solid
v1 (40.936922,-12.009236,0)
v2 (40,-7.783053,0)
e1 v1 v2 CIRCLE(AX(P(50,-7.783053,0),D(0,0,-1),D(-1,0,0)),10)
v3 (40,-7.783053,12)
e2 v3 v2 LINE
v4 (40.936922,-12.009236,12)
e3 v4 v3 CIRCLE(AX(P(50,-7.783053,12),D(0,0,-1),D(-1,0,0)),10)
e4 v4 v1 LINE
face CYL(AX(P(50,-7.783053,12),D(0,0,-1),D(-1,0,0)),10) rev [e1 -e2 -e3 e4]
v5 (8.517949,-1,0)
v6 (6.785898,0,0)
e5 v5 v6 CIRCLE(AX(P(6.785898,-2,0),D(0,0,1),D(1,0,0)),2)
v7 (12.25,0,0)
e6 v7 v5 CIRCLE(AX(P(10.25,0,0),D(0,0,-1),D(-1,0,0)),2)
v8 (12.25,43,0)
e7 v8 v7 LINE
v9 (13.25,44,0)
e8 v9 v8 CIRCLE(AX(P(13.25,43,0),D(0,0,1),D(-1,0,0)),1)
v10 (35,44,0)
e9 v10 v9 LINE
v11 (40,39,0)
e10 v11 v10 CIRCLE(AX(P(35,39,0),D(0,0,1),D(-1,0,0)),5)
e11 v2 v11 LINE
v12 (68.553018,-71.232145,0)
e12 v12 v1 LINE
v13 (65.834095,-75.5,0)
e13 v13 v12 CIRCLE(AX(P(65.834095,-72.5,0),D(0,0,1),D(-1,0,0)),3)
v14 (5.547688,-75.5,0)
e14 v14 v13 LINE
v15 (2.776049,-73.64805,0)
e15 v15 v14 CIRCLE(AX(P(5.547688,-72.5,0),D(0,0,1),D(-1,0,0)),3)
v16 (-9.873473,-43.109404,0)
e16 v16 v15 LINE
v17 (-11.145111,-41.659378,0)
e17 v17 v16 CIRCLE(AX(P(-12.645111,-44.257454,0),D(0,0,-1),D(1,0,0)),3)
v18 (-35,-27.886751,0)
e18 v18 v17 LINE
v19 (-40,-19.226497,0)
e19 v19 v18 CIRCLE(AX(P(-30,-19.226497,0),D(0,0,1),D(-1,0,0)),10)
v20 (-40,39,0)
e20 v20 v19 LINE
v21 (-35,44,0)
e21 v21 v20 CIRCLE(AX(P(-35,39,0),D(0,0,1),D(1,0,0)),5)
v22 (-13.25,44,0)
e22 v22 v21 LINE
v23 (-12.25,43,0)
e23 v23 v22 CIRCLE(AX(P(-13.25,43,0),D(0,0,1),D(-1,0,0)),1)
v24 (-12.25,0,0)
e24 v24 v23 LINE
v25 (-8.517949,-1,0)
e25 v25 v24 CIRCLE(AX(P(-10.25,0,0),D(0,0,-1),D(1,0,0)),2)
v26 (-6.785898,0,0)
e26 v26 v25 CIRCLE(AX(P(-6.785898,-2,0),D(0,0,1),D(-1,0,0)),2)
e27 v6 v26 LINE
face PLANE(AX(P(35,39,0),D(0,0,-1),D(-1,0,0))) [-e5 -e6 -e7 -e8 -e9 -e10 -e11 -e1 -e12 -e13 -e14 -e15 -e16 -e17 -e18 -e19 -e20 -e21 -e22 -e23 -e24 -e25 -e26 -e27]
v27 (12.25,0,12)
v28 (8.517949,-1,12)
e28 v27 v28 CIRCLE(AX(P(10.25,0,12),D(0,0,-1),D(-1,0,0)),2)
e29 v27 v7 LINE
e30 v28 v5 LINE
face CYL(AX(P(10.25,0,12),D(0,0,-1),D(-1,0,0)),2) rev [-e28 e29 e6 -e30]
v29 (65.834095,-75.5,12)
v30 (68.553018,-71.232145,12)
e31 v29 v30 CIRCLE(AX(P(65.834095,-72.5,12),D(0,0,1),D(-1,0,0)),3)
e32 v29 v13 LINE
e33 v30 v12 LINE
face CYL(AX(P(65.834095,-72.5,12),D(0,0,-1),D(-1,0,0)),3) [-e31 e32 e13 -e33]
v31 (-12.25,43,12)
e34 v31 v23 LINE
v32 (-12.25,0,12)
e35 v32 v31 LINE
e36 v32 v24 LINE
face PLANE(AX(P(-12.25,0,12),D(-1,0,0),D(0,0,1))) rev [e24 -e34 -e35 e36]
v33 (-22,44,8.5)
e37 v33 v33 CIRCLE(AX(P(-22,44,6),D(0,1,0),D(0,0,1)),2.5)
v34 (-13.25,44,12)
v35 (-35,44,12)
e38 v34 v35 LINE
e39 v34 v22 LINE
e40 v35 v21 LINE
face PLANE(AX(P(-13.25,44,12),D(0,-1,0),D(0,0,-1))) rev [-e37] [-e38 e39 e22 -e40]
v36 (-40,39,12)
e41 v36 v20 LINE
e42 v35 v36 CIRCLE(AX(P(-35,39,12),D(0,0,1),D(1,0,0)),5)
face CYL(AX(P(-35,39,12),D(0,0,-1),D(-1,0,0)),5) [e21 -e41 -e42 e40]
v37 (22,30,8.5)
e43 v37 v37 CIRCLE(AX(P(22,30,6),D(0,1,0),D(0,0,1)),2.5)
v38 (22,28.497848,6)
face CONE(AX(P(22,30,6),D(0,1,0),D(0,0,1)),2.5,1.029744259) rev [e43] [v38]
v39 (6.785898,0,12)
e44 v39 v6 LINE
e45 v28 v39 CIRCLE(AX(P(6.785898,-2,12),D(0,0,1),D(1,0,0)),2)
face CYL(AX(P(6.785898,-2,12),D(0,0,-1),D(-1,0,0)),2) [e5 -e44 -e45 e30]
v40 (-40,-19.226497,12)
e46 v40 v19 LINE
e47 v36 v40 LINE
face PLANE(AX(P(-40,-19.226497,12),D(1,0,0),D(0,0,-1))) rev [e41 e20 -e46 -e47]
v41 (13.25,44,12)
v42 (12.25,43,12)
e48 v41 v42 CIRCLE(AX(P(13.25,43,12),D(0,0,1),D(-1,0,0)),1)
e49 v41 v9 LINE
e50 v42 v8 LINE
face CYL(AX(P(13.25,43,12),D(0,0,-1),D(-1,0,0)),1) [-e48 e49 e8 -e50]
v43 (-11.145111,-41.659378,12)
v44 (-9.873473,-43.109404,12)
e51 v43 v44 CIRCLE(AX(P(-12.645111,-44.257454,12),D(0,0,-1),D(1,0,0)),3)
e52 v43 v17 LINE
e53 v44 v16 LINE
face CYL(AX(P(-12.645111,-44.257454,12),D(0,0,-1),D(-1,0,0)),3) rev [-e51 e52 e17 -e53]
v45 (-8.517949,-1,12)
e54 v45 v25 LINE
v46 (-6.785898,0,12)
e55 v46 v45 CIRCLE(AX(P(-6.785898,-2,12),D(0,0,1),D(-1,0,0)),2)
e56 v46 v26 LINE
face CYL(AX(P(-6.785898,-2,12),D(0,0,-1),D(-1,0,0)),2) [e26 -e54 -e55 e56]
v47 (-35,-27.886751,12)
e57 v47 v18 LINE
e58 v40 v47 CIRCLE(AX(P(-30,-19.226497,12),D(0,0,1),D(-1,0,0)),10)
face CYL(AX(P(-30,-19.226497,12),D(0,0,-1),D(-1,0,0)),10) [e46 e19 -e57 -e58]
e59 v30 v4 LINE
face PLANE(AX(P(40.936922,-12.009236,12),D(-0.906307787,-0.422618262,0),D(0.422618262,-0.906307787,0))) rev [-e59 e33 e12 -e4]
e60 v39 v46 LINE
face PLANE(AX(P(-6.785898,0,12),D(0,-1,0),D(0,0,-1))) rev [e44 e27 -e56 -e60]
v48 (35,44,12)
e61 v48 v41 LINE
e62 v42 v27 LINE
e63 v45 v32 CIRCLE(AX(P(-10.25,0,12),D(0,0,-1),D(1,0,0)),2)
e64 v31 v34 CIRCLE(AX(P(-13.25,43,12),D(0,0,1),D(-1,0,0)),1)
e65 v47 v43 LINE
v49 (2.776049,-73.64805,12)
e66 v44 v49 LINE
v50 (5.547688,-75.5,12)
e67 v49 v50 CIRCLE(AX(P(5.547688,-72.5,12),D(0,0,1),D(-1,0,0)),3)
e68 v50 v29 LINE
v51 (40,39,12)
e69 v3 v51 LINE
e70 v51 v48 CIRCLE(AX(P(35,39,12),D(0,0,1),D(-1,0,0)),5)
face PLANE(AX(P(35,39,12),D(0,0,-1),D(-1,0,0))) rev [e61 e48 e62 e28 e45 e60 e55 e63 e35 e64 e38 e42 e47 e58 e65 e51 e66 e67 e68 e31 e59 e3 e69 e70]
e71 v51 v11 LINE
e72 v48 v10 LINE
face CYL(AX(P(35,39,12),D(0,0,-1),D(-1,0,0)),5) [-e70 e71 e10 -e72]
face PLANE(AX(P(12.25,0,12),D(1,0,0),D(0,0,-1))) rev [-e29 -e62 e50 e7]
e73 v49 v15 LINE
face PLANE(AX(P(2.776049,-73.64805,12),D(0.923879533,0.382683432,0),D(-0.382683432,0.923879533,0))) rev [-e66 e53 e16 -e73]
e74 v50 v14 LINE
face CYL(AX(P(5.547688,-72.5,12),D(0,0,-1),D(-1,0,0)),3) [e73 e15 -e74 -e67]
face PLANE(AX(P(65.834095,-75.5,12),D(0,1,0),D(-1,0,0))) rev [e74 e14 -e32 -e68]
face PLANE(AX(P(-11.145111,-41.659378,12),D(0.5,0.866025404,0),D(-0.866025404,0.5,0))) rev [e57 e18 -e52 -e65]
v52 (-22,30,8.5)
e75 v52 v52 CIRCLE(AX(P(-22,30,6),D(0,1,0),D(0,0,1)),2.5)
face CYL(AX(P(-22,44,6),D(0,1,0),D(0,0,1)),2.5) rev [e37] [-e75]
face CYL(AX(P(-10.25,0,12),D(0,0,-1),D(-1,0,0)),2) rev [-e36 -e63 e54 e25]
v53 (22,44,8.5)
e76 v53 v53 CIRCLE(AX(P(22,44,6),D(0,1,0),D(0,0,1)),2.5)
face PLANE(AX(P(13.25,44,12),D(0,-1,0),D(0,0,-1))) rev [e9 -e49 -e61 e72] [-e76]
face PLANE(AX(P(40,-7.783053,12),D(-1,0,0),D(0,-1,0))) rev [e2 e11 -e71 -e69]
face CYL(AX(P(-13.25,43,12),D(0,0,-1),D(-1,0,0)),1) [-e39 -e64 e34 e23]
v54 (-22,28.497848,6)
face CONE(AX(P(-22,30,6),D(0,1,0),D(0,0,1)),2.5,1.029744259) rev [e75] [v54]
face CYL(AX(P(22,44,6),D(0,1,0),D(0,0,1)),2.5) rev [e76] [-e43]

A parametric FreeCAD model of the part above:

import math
import FreeCAD as App
import Part
import Sketcher
Q = App.Units.Quantity

doc = App.newDocument("Part")
params = doc.addObject("Spreadsheet::Sheet", "Params")
for row, (alias, value) in enumerate([
    ("sketch1_radius", "2 mm"),
    ("sketch1_radius2", "1 mm"),
    ("sketch1_radius3", "5 mm"),
    ("sketch1_radius4", "10 mm"),
    ("sketch1_radius5", "3 mm"),
    ("pad1_length", "12 mm"),
    ("sketch2_diameter", "5 mm"),
    ("hole_diameter", "5 mm"),
    ("hole_depth", "14 mm"),
], start=1):
    params.set(f"A{row}", alias)
    params.set(f"B{row}", "=" + value)
    params.setAlias(f"B{row}", alias)

body = doc.addObject("PartDesign::Body", "Body")

sketch1 = body.newObject("Sketcher::SketchObject", "Sketch")
sketch1.AttachmentSupport = (doc.getObject("XY_Plane"), [""])
sketch1.MapMode = "FlatFace"
sketch1.addGeometry([
    Part.LineSegment(App.Vector(6.8, 0, 0), App.Vector(-6.8, 0, 0)),
    Part.ArcOfCircle(Part.Circle(App.Vector(-6.8, -2, 0), App.Vector(0, 0, 1), 2), math.radians(90), math.radians(150)),
    Part.ArcOfCircle(Part.Circle(App.Vector(-10.2, 0, 0), App.Vector(0, 0, 1), 2), math.radians(180), math.radians(330)),
    Part.LineSegment(App.Vector(-12.2, 0, 0), App.Vector(-12.2, 43, 0)),
    Part.ArcOfCircle(Part.Circle(App.Vector(-13.3, 43, 0), App.Vector(0, 0, 1), 1), math.radians(0), math.radians(90)),
    Part.LineSegment(App.Vector(-13.2, 44, 0), App.Vector(-35, 44, 0)),
    Part.ArcOfCircle(Part.Circle(App.Vector(-35, 39, 0), App.Vector(0, 0, 1), 5), math.radians(90), math.radians(180)),
    Part.LineSegment(App.Vector(-40, 39, 0), App.Vector(-40, -19.2, 0)),
    Part.ArcOfCircle(Part.Circle(App.Vector(-30, -19.2, 0), App.Vector(0, 0, 1), 10), math.radians(180), math.radians(240)),
    Part.LineSegment(App.Vector(-35, -27.9, 0), App.Vector(-11.1, -41.7, 0)),
    Part.ArcOfCircle(Part.Circle(App.Vector(-12.6, -44.3, 0), App.Vector(0, 0, 1), 3), math.radians(23), math.radians(60)),
    Part.LineSegment(App.Vector(-9.9, -43.1, 0), App.Vector(2.8, -73.6, 0)),
    Part.ArcOfCircle(Part.Circle(App.Vector(5.5, -72.5, 0), App.Vector(0, 0, 1), 3), math.radians(-157), math.radians(-90)),
    Part.LineSegment(App.Vector(5.5, -75.5, 0), App.Vector(65.8, -75.5, 0)),
    Part.ArcOfCircle(Part.Circle(App.Vector(65.8, -72.5, 0), App.Vector(0, 0, 1), 3), math.radians(-90), math.radians(25)),
    Part.LineSegment(App.Vector(68.6, -71.2, 0), App.Vector(40.9, -12, 0)),
    Part.ArcOfCircle(Part.Circle(App.Vector(50, -7.8, 0), App.Vector(0, 0, 1), 10), math.radians(-180), math.radians(-155)),
    Part.LineSegment(App.Vector(40, -7.8, 0), App.Vector(40, 39, 0)),
    Part.ArcOfCircle(Part.Circle(App.Vector(35, 39, 0), App.Vector(0, 0, 1), 5), math.radians(0), math.radians(90)),
    Part.LineSegment(App.Vector(35, 44, 0), App.Vector(13.2, 44, 0)),
    Part.ArcOfCircle(Part.Circle(App.Vector(13.3, 43, 0), App.Vector(0, 0, 1), 1), math.radians(90), math.radians(180)),
    Part.LineSegment(App.Vector(12.2, 43, 0), App.Vector(12.2, 0, 0)),
    Part.ArcOfCircle(Part.Circle(App.Vector(10.2, 0, 0), App.Vector(0, 0, 1), 2), math.radians(-150), math.radians(0)),
    Part.ArcOfCircle(Part.Circle(App.Vector(6.8, -2, 0), App.Vector(0, 0, 1), 2), math.radians(30), math.radians(90)),
], False)
sketch1.addConstraint([
    Sketcher.Constraint("Tangent", 0, 2, 1, 1),
    Sketcher.Constraint("Tangent", 1, 2, 2, 2),
    Sketcher.Constraint("Tangent", 2, 1, 3, 1),
    Sketcher.Constraint("Tangent", 3, 2, 4, 1),
    Sketcher.Constraint("Tangent", 4, 2, 5, 1),
    Sketcher.Constraint("Tangent", 5, 2, 6, 1),
    Sketcher.Constraint("Tangent", 6, 2, 7, 1),
    Sketcher.Constraint("Tangent", 7, 2, 8, 1),
    Sketcher.Constraint("Tangent", 8, 2, 9, 1),
    Sketcher.Constraint("Tangent", 9, 2, 10, 2),
    Sketcher.Constraint("Tangent", 10, 1, 11, 1),
    Sketcher.Constraint("Tangent", 11, 2, 12, 1),
    Sketcher.Constraint("Tangent", 12, 2, 13, 1),
    Sketcher.Constraint("Tangent", 13, 2, 14, 1),
    Sketcher.Constraint("Tangent", 14, 2, 15, 1),
    Sketcher.Constraint("Tangent", 15, 2, 16, 2),
    Sketcher.Constraint("Tangent", 16, 1, 17, 1),
    Sketcher.Constraint("Tangent", 17, 2, 18, 1),
    Sketcher.Constraint("Tangent", 18, 2, 19, 1),
    Sketcher.Constraint("Tangent", 19, 2, 20, 1),
    Sketcher.Constraint("Tangent", 20, 2, 21, 1),
    Sketcher.Constraint("Tangent", 21, 2, 22, 2),
    Sketcher.Constraint("Tangent", 22, 1, 23, 1),
    Sketcher.Constraint("Tangent", 23, 2, 0, 1),
    Sketcher.Constraint("Horizontal", 0),
    Sketcher.Constraint("Vertical", 3),
    Sketcher.Constraint("Horizontal", 5),
    Sketcher.Constraint("Vertical", 7),
    Sketcher.Constraint("Horizontal", 13),
    Sketcher.Constraint("Vertical", 17),
    Sketcher.Constraint("Horizontal", 19),
    Sketcher.Constraint("Vertical", 21),
    Sketcher.Constraint("Equal", 1, 2),
    Sketcher.Constraint("Equal", 10, 12),
    Sketcher.Constraint("Equal", 12, 14),
    Sketcher.Constraint("Equal", 8, 16),
    Sketcher.Constraint("Equal", 6, 18),
    Sketcher.Constraint("Equal", 4, 20),
    Sketcher.Constraint("Equal", 2, 22),
    Sketcher.Constraint("Equal", 22, 23),
    Sketcher.Constraint("Symmetric", 2, 3, 22, 3, -1, 1),
    Sketcher.Constraint("Symmetric", 0, 2, 23, 2, -1, 1),
    Sketcher.Constraint("Symmetric", 6, 3, 18, 3, -2),
    Sketcher.Constraint("Vertical", 5, 2, 8, 2),
    Sketcher.Constraint("Radius", 1, Q("2 mm")),
    Sketcher.Constraint("Radius", 4, Q("1 mm")),
    Sketcher.Constraint("Radius", 6, Q("5 mm")),
    Sketcher.Constraint("Radius", 8, Q("10 mm")),
    Sketcher.Constraint("Radius", 10, Q("3 mm")),
    Sketcher.Constraint("DistanceY", 3, 1, 3, 2, Q("43 mm")),
    Sketcher.Constraint("Angle", 15, Q("115 deg")),
    Sketcher.Constraint("DistanceX", 6, 3, -1, 1, Q("35 mm")),
    Sketcher.Constraint("Angle", 11, Q("-67.5 deg")),
    Sketcher.Constraint("DistanceX", 5, 2, 5, 1, Q("21.75 mm")),
    Sketcher.Constraint("DistanceY", 12, 3, -1, 1, Q("72.5 mm")),
    Sketcher.Constraint("DistanceX", 10, 3, 12, 3, Q("18.192799 mm")),
    Sketcher.Constraint("DistanceY", 10, 3, 16, 3, Q("36.474401 mm")),
    Sketcher.Constraint("DistanceY", 11, 2, 8, 2, Q("45.761299 mm")),
])
sketch1.setExpression("Constraints[44]", "Params.sketch1_radius")
sketch1.setExpression("Constraints[45]", "Params.sketch1_radius2")
sketch1.setExpression("Constraints[46]", "Params.sketch1_radius3")
sketch1.setExpression("Constraints[47]", "Params.sketch1_radius4")
sketch1.setExpression("Constraints[48]", "Params.sketch1_radius5")
pad1 = body.newObject("PartDesign::Pad", "Pad")
pad1.Profile = sketch1
pad1.setExpression("Length", "Params.pad1_length")

sketch2 = body.newObject("Sketcher::SketchObject", "Sketch001")
sketch2.AttachmentSupport = (doc.getObject("XZ_Plane"), [""])
sketch2.MapMode = "FlatFace"
sketch2.AttachmentOffset = App.Placement(App.Vector(0, 0, -44), App.Rotation())
sketch2.addGeometry([
    Part.Circle(App.Vector(22, 6, 0), App.Vector(0, 0, 1), 2.5),
    Part.Circle(App.Vector(-22, 6, 0), App.Vector(0, 0, 1), 2.5),
], False)
sketch2.addConstraint([
    Sketcher.Constraint("Equal", 0, 1),
    Sketcher.Constraint("Symmetric", 0, 3, 1, 3, -2),
    Sketcher.Constraint("Diameter", 0, Q("5 mm")),
    Sketcher.Constraint("DistanceX", -1, 1, 0, 3, Q("22 mm")),
    Sketcher.Constraint("DistanceY", -1, 1, 0, 3, Q("6 mm")),
])
sketch2.setExpression("Constraints[2]", "Params.sketch2_diameter")
doc.recompute()
hole = body.newObject("PartDesign::Hole", "Hole")
hole.Profile = sketch2
hole.ThreadType = "None"
hole.setExpression("Diameter", "Params.hole_diameter")
hole.DepthType = "Dimension"
hole.setExpression("Depth", "Params.hole_depth")
hole.DrillPoint = "Angled"
hole.DrillPointAngle = 118
hole.Reversed = True

doc.recompute()
